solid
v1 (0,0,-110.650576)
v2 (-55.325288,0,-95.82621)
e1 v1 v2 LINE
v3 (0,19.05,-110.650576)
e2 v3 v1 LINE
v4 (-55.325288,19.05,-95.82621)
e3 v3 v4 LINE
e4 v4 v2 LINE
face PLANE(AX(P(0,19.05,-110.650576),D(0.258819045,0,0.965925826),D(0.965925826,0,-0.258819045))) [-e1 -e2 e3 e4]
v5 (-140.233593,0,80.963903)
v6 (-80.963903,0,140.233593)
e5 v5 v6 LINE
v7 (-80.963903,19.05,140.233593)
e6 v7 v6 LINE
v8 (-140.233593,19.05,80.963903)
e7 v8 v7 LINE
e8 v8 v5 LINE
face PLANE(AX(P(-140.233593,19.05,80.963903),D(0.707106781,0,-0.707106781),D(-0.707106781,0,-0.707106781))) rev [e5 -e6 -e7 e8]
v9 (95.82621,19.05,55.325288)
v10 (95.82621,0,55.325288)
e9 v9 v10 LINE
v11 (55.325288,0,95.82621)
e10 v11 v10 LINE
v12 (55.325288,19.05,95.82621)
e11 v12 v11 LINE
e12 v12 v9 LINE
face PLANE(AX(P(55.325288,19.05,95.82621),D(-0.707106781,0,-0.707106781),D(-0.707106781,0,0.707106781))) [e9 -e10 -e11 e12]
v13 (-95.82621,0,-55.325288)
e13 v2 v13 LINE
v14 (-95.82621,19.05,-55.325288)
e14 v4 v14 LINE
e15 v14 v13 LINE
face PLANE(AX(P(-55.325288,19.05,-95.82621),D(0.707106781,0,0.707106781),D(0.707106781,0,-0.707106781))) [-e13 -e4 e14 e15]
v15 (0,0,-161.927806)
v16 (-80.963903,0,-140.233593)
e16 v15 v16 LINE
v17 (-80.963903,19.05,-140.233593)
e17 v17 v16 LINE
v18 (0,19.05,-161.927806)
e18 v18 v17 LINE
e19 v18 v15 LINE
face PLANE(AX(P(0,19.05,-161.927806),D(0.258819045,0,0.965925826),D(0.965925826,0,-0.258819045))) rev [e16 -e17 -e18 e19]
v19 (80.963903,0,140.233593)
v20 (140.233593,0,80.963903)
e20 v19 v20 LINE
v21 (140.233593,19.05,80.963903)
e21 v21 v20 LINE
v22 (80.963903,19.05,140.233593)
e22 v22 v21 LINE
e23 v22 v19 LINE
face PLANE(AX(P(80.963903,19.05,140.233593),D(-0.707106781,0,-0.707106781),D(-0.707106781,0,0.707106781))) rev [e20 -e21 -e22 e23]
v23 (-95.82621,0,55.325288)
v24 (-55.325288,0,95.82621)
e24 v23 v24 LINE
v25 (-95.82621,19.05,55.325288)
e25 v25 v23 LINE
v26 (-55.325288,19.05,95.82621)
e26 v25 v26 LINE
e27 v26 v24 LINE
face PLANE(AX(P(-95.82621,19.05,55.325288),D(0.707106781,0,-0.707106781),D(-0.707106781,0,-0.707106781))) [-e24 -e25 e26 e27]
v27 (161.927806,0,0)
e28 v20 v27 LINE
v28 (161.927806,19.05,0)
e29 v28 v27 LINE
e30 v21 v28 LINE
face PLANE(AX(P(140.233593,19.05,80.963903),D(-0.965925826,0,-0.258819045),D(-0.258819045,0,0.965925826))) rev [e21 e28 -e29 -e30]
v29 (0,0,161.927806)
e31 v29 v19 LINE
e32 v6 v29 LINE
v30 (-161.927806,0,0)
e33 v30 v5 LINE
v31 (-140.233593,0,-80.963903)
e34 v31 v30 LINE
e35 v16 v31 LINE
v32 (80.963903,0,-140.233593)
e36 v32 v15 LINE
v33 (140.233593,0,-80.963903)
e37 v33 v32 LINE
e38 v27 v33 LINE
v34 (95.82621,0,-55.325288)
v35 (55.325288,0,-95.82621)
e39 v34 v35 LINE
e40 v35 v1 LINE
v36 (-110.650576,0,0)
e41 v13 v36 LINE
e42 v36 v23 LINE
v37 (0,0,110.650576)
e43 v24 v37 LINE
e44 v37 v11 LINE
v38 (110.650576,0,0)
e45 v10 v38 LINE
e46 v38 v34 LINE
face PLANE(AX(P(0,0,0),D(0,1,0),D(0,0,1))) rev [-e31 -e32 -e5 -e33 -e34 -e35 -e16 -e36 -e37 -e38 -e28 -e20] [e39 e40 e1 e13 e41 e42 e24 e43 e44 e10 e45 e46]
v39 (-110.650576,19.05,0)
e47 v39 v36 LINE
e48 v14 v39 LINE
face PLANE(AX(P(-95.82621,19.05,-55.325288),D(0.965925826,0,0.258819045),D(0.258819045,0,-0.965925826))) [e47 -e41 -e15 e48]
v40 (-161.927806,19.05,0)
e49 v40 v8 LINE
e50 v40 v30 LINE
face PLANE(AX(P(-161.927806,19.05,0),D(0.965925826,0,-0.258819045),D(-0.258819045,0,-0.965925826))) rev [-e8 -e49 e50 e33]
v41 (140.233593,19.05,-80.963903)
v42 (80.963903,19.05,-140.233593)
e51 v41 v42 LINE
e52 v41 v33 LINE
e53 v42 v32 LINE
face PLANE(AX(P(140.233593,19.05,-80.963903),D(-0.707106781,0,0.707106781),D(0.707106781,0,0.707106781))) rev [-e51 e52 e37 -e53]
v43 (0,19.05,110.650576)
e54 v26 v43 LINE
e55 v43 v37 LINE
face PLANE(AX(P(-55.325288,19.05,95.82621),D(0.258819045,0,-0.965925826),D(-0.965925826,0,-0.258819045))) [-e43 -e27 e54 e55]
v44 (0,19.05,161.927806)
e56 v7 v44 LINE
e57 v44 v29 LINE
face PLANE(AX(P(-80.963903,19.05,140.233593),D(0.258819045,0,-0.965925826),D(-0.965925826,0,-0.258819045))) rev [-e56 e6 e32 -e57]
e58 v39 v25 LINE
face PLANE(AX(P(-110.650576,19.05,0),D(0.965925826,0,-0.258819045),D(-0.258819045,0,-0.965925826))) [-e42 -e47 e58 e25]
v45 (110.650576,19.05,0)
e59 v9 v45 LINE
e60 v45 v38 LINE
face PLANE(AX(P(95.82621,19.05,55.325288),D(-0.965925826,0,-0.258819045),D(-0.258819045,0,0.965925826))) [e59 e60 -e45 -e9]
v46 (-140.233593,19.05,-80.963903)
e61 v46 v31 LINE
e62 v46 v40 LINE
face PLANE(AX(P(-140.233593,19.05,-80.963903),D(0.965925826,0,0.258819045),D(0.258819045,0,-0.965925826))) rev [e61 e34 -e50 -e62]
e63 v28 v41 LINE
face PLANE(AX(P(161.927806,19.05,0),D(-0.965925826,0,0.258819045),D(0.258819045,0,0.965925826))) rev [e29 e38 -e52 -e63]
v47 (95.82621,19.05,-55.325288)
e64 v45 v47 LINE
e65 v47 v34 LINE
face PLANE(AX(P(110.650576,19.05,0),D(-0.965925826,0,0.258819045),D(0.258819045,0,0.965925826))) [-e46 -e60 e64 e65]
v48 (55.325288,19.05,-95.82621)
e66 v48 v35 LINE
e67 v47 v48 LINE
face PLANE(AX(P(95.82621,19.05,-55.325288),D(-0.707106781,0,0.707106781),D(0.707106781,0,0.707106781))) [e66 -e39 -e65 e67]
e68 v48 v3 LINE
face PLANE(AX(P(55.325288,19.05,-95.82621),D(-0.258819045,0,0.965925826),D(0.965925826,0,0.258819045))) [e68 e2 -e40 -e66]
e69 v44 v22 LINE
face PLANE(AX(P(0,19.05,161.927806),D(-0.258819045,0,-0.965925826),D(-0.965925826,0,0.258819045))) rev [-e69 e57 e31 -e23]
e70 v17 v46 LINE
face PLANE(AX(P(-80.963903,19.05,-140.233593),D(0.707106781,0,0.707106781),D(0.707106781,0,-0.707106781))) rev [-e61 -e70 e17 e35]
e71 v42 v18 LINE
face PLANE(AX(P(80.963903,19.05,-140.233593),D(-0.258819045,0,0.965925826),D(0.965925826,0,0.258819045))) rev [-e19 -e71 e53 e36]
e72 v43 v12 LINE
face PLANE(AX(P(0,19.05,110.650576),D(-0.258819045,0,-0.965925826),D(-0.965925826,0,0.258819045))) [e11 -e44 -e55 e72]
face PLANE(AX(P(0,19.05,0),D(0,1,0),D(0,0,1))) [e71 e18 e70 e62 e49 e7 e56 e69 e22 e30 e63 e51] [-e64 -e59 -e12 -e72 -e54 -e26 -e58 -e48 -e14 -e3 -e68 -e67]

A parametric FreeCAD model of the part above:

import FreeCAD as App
import Part
import Sketcher
Q = App.Units.Quantity


def add_polygon(sketch, points):
    """Adds a closed chain of lines whose ends are joined by coincident constraints."""
    first, n = sketch.GeometryCount, len(points)
    for a, b in zip(points, points[1:] + points[:1]):
        sketch.addGeometry(Part.LineSegment(App.Vector(*a, 0), App.Vector(*b, 0)), False)
    for i in range(n):
        sketch.addConstraint(Sketcher.Constraint("Coincident", first + i, 2, first + (i + 1) % n, 1))

doc = App.newDocument("Part")
body = doc.addObject("PartDesign::Body", "Body")

# Sketch on XZ plane
sketch1 = body.newObject("Sketcher::SketchObject", "Sketch")
sketch1.AttachmentSupport = (doc.getObject("XZ_Plane"), [""])
sketch1.MapMode = "FlatFace"
add_polygon(sketch1, [(-162, 0), (-140, 81), (-81, 140), (0, 162), (81, 140), (140, 81), (162, 0), (140, -81), (81, -140), (0, -162), (-81, -140), (-140, -81)])  # lines 0-11
add_polygon(sketch1, [(-96, 55), (-111, 0), (-96, -55), (-55, -96), (0, -111), (55, -96), (96, -55), (111, 0), (96, 55), (55, 96), (0, 111), (-55, 96)])  # lines 12-23
sketch1.addConstraint(Sketcher.Constraint("Symmetric", 0, 2, 6, 2, -1, 1))
sketch1.addConstraint(Sketcher.Constraint("Symmetric", 1, 2, 7, 2, -1, 1))
sketch1.addConstraint(Sketcher.Constraint("Symmetric", 2, 2, 8, 2, -1, 1))
sketch1.addConstraint(Sketcher.Constraint("Symmetric", 3, 2, 9, 2, -1, 1))
sketch1.addConstraint(Sketcher.Constraint("Symmetric", 4, 2, 10, 2, -1, 1))
sketch1.addConstraint(Sketcher.Constraint("Symmetric", 5, 2, 11, 2, -1, 1))
sketch1.addConstraint(Sketcher.Constraint("Symmetric", 12, 2, 18, 2, -1, 1))
sketch1.addConstraint(Sketcher.Constraint("Symmetric", 13, 2, 19, 2, -1, 1))
sketch1.addConstraint(Sketcher.Constraint("Symmetric", 14, 2, 20, 2, -1, 1))
sketch1.addConstraint(Sketcher.Constraint("Symmetric", 15, 2, 21, 2, -1, 1))
sketch1.addConstraint(Sketcher.Constraint("Symmetric", 16, 2, 22, 2, -1, 1))
sketch1.addConstraint(Sketcher.Constraint("Symmetric", 17, 2, 23, 2, -1, 1))
sketch1.addConstraint(Sketcher.Constraint("Symmetric", 1, 2, 3, 2, -2))
sketch1.addConstraint(Sketcher.Constraint("Symmetric", 0, 2, 4, 2, -2))
sketch1.addConstraint(Sketcher.Constraint("Symmetric", 14, 2, 16, 2, -2))
sketch1.addConstraint(Sketcher.Constraint("Symmetric", 13, 2, 17, 2, -2))
sketch1.addConstraint(Sketcher.Constraint("PointOnObject", 2, 2, -2))
sketch1.addConstraint(Sketcher.Constraint("PointOnObject", 5, 2, -1))
sketch1.addConstraint(Sketcher.Constraint("PointOnObject", 12, 2, -1))
sketch1.addConstraint(Sketcher.Constraint("PointOnObject", 15, 2, -2))
sketch1.addConstraint(Sketcher.Constraint("Perpendicular", 0, 3))
sketch1.addConstraint(Sketcher.Constraint("Perpendicular", 1, 4))
sketch1.addConstraint(Sketcher.Constraint("Perpendicular", 9, 12))
sketch1.addConstraint(Sketcher.Constraint("Parallel", 10, 14))
sketch1.addConstraint(Sketcher.Constraint("Perpendicular", 12, 15))
sketch1.addConstraint(Sketcher.Constraint("Equal", 0, 1))
sketch1.addConstraint(Sketcher.Constraint("Equal", 1, 2))
sketch1.addConstraint(Sketcher.Constraint("Equal", 13, 14))
sketch1.addConstraint(Sketcher.Constraint("Equal", 14, 15))
sketch1.addConstraint(Sketcher.Constraint("Angle", 0, Q("75 deg")))
sketch1.addConstraint(Sketcher.Constraint("Distance", 0, Q("3.3 in")))
sketch1.addConstraint(Sketcher.Constraint("DistanceX", 13, 2, -1, 1, Q("95.82621 mm")))
pad1 = body.newObject("PartDesign::Pad", "Pad")
pad1.Profile = sketch1
pad1.Length = Q("0.75 in")
pad1.Reversed = True

doc.recompute()
